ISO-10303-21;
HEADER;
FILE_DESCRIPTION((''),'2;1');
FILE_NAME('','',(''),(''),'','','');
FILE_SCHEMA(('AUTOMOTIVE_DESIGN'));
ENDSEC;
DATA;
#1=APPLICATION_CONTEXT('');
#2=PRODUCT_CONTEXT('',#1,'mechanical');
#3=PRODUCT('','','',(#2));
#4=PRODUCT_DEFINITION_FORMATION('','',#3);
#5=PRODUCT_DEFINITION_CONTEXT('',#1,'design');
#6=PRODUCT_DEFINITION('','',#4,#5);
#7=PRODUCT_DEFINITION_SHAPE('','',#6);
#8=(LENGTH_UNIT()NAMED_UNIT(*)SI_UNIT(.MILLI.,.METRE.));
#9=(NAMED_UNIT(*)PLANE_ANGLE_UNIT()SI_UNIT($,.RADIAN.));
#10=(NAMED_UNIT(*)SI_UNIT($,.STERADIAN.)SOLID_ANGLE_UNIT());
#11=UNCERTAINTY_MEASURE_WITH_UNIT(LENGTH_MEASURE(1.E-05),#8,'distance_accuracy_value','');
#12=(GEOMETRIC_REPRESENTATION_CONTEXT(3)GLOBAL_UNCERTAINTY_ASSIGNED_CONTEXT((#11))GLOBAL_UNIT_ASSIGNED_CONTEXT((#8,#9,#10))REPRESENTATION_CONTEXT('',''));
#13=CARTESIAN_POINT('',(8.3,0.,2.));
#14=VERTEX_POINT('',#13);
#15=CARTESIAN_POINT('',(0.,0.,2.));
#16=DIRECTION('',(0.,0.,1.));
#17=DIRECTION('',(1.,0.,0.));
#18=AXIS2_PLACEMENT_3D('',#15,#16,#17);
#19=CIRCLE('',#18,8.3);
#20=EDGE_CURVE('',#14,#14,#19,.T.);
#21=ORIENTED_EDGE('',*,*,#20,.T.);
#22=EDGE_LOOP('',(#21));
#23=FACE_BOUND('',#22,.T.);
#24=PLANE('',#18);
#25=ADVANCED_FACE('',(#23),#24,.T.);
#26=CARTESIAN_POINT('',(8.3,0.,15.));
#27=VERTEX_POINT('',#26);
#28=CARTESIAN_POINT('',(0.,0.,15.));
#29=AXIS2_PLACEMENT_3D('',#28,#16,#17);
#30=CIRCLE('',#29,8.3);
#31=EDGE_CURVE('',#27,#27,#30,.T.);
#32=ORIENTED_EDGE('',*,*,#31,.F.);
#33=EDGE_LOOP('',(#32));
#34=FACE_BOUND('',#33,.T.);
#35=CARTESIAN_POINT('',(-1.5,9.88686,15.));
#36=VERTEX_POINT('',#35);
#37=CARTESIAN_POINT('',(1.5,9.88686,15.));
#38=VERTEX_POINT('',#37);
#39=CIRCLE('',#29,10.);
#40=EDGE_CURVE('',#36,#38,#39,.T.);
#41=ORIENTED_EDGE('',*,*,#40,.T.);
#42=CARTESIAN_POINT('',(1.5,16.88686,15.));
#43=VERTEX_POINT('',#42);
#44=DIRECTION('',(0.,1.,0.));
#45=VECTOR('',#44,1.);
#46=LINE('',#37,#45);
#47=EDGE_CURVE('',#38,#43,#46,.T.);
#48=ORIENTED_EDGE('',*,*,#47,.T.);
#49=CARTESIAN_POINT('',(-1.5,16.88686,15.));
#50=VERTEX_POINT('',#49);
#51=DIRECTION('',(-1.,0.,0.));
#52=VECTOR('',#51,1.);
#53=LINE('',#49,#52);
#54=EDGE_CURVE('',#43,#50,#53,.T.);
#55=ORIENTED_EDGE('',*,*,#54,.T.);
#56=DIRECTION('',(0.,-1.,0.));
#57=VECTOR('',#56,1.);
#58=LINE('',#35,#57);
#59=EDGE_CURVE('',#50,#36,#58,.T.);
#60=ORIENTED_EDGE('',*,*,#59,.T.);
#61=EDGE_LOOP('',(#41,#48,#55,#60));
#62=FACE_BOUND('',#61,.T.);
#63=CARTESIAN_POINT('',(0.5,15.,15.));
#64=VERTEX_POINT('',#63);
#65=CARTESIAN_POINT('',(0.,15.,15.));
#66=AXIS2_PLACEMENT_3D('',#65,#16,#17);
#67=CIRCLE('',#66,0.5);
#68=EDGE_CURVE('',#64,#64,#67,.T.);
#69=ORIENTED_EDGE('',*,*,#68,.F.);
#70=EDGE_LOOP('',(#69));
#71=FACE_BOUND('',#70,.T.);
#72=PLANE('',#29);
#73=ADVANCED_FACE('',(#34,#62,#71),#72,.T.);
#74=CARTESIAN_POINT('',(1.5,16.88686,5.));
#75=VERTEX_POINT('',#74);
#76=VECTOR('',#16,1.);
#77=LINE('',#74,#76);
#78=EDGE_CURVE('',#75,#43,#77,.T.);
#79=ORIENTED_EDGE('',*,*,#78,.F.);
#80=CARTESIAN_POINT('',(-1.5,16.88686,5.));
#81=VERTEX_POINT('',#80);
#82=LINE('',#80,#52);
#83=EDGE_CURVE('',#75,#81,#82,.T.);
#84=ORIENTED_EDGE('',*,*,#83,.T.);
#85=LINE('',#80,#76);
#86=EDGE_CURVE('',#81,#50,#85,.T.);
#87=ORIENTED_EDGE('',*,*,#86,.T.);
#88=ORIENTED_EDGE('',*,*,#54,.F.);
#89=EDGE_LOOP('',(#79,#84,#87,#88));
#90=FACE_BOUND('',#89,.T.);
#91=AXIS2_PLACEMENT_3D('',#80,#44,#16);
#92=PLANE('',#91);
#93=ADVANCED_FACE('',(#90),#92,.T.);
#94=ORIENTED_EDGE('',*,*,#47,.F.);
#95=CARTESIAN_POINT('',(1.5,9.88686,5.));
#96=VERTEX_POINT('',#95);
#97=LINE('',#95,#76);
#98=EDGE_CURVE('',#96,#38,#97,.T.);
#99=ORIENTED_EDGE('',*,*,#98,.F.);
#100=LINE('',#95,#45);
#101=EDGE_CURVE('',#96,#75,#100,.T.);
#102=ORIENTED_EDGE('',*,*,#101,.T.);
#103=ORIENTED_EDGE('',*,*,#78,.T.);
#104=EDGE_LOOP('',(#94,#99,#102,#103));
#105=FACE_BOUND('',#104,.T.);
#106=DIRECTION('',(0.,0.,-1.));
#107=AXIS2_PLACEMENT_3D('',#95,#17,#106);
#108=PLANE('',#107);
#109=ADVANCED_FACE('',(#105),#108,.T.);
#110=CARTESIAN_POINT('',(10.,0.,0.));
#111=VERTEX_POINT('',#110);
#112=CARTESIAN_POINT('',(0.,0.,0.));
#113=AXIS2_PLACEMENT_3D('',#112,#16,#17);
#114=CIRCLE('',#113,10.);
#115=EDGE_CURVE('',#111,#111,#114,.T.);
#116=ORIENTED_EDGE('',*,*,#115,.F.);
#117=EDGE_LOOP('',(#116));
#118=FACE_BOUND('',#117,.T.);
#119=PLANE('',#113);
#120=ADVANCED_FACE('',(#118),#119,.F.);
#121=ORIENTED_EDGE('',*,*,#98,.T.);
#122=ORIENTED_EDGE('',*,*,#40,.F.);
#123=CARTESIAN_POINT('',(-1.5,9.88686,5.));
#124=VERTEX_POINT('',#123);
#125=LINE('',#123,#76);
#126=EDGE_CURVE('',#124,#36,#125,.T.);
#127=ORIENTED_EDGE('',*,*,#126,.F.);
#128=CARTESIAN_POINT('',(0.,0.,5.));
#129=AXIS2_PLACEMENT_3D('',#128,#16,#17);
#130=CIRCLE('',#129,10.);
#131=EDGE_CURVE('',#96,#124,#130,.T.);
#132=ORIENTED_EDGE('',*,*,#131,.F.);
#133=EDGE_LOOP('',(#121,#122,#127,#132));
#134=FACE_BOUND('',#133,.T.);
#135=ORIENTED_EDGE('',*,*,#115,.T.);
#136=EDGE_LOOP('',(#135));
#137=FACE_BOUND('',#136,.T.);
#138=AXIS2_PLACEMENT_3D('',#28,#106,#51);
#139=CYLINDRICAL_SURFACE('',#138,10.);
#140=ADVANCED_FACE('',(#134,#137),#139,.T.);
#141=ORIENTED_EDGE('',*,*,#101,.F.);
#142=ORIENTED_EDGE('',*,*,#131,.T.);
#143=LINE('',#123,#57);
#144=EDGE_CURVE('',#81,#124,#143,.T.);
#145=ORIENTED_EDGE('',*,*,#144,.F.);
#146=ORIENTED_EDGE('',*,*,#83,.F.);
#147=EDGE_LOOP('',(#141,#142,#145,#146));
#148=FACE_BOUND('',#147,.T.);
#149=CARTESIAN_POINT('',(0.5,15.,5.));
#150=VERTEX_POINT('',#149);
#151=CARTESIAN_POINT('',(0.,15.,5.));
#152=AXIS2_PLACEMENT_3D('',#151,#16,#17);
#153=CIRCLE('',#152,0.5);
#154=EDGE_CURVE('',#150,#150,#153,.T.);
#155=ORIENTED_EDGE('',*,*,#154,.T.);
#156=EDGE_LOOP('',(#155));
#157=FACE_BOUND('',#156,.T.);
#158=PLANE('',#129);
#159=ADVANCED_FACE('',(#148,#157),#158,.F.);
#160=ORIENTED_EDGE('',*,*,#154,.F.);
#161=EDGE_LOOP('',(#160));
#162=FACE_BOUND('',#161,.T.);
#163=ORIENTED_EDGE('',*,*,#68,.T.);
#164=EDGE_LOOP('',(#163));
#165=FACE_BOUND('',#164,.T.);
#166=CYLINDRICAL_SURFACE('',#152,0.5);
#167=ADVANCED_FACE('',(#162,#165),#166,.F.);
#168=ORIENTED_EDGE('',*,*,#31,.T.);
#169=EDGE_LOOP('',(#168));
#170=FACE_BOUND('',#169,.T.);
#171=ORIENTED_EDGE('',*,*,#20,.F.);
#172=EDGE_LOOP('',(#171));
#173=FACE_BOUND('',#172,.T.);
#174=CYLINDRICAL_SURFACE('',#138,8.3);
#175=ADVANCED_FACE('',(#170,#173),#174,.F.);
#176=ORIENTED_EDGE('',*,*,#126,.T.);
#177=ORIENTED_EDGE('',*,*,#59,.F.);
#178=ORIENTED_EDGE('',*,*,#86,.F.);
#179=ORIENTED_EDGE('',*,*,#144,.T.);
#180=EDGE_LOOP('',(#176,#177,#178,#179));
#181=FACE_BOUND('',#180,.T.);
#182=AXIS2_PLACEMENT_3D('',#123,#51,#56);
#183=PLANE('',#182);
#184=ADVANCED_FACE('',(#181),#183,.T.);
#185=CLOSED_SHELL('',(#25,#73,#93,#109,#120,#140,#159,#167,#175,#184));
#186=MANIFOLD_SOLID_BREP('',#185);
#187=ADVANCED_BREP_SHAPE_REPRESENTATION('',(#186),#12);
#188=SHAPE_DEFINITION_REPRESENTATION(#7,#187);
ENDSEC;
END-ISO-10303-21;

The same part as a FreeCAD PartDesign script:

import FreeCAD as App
import Part
import Sketcher


def add_polygon(sketch, points):
    """Adds a closed chain of lines whose ends are joined by coincident constraints."""
    first, n = sketch.GeometryCount, len(points)
    for a, b in zip(points, points[1:] + points[:1]):
        sketch.addGeometry(Part.LineSegment(App.Vector(*a, 0), App.Vector(*b, 0)), False)
    for i in range(n):
        sketch.addConstraint(Sketcher.Constraint("Coincident", first + i, 2, first + (i + 1) % n, 1))

doc = App.newDocument("Part")
body = doc.addObject("PartDesign::Body", "Body")

# Sketch on XY plane
sketch1 = body.newObject("Sketcher::SketchObject", "Sketch")
sketch1.AttachmentSupport = (doc.getObject("XY_Plane"), [""])
sketch1.MapMode = "FlatFace"
sketch1.addGeometry(Part.Circle(App.Vector(0, 0, 0), App.Vector(0, 0, 1), 10), False)
sketch1.addGeometry(Part.Circle(App.Vector(0, 0, 0), App.Vector(0, 0, 1), 8), False)
sketch1.addConstraint(Sketcher.Constraint("Coincident", 0, 3, -1, 1))
sketch1.addConstraint(Sketcher.Constraint("Coincident", 1, 3, -1, 1))
sketch1.addConstraint(Sketcher.Constraint("Diameter", 0, 20.0))
sketch1.addConstraint(Sketcher.Constraint("Diameter", 1, 16.6))
pad1 = body.newObject("PartDesign::Pad", "Pad")
pad1.Profile = sketch1
pad1.Length = 15

# Sketch on XY plane
sketch2 = body.newObject("Sketcher::SketchObject", "Sketch001")
sketch2.AttachmentSupport = (doc.getObject("XY_Plane"), [""])
sketch2.MapMode = "FlatFace"
sketch2.addGeometry(Part.Circle(App.Vector(0, 0, 0), App.Vector(0, 0, 1), 10), False)
sketch2.addConstraint(Sketcher.Constraint("Coincident", 0, 3, -1, 1))
sketch2.addConstraint(Sketcher.Constraint("Diameter", 0, 20.0))
pad2 = body.newObject("PartDesign::Pad", "Pad001")
pad2.Profile = sketch2
pad2.Length = 2

# Sketch on XY plane
sketch3 = body.newObject("Sketcher::SketchObject", "Sketch002")
sketch3.AttachmentSupport = (doc.getObject("XY_Plane"), [""])
sketch3.MapMode = "FlatFace"
sketch3.AttachmentOffset = App.Placement(App.Vector(0, 0, 15), App.Rotation())
add_polygon(sketch3, [(-1.5, 16.9), (-1.5, 9.9), (1.5, 9.9), (1.5, 16.9)])  # lines 0-3
sketch3.addGeometry(Part.Circle(App.Vector(0, 15, 0), App.Vector(0, 0, 1), 0.5), False)  # 4
sketch3.addConstraint(Sketcher.Constraint("Vertical", 0))
sketch3.addConstraint(Sketcher.Constraint("Horizontal", 1))
sketch3.addConstraint(Sketcher.Constraint("Vertical", 2))
sketch3.addConstraint(Sketcher.Constraint("Horizontal", 3))
sketch3.addConstraint(Sketcher.Constraint("PointOnObject", 4, 3, -2))
sketch3.addConstraint(Sketcher.Constraint("Diameter", 4, 1.0))
sketch3.addConstraint(Sketcher.Constraint("DistanceX", 1, 1, 1, 2, 3.0))
sketch3.addConstraint(Sketcher.Constraint("DistanceY", 0, 2, 0, 1, 7.0))
sketch3.addConstraint(Sketcher.Constraint("DistanceY", -1, 1, 4, 3, 15.0))
sketch3.addConstraint(Sketcher.Constraint("DistanceX", 0, 2, -1, 1, 1.5))
sketch3.addConstraint(Sketcher.Constraint("DistanceY", -1, 1, 0, 2, 9.88686))
pad3 = body.newObject("PartDesign::Pad", "Pad002")
pad3.Profile = sketch3
pad3.Length = 10
pad3.Reversed = True

doc.recompute()
